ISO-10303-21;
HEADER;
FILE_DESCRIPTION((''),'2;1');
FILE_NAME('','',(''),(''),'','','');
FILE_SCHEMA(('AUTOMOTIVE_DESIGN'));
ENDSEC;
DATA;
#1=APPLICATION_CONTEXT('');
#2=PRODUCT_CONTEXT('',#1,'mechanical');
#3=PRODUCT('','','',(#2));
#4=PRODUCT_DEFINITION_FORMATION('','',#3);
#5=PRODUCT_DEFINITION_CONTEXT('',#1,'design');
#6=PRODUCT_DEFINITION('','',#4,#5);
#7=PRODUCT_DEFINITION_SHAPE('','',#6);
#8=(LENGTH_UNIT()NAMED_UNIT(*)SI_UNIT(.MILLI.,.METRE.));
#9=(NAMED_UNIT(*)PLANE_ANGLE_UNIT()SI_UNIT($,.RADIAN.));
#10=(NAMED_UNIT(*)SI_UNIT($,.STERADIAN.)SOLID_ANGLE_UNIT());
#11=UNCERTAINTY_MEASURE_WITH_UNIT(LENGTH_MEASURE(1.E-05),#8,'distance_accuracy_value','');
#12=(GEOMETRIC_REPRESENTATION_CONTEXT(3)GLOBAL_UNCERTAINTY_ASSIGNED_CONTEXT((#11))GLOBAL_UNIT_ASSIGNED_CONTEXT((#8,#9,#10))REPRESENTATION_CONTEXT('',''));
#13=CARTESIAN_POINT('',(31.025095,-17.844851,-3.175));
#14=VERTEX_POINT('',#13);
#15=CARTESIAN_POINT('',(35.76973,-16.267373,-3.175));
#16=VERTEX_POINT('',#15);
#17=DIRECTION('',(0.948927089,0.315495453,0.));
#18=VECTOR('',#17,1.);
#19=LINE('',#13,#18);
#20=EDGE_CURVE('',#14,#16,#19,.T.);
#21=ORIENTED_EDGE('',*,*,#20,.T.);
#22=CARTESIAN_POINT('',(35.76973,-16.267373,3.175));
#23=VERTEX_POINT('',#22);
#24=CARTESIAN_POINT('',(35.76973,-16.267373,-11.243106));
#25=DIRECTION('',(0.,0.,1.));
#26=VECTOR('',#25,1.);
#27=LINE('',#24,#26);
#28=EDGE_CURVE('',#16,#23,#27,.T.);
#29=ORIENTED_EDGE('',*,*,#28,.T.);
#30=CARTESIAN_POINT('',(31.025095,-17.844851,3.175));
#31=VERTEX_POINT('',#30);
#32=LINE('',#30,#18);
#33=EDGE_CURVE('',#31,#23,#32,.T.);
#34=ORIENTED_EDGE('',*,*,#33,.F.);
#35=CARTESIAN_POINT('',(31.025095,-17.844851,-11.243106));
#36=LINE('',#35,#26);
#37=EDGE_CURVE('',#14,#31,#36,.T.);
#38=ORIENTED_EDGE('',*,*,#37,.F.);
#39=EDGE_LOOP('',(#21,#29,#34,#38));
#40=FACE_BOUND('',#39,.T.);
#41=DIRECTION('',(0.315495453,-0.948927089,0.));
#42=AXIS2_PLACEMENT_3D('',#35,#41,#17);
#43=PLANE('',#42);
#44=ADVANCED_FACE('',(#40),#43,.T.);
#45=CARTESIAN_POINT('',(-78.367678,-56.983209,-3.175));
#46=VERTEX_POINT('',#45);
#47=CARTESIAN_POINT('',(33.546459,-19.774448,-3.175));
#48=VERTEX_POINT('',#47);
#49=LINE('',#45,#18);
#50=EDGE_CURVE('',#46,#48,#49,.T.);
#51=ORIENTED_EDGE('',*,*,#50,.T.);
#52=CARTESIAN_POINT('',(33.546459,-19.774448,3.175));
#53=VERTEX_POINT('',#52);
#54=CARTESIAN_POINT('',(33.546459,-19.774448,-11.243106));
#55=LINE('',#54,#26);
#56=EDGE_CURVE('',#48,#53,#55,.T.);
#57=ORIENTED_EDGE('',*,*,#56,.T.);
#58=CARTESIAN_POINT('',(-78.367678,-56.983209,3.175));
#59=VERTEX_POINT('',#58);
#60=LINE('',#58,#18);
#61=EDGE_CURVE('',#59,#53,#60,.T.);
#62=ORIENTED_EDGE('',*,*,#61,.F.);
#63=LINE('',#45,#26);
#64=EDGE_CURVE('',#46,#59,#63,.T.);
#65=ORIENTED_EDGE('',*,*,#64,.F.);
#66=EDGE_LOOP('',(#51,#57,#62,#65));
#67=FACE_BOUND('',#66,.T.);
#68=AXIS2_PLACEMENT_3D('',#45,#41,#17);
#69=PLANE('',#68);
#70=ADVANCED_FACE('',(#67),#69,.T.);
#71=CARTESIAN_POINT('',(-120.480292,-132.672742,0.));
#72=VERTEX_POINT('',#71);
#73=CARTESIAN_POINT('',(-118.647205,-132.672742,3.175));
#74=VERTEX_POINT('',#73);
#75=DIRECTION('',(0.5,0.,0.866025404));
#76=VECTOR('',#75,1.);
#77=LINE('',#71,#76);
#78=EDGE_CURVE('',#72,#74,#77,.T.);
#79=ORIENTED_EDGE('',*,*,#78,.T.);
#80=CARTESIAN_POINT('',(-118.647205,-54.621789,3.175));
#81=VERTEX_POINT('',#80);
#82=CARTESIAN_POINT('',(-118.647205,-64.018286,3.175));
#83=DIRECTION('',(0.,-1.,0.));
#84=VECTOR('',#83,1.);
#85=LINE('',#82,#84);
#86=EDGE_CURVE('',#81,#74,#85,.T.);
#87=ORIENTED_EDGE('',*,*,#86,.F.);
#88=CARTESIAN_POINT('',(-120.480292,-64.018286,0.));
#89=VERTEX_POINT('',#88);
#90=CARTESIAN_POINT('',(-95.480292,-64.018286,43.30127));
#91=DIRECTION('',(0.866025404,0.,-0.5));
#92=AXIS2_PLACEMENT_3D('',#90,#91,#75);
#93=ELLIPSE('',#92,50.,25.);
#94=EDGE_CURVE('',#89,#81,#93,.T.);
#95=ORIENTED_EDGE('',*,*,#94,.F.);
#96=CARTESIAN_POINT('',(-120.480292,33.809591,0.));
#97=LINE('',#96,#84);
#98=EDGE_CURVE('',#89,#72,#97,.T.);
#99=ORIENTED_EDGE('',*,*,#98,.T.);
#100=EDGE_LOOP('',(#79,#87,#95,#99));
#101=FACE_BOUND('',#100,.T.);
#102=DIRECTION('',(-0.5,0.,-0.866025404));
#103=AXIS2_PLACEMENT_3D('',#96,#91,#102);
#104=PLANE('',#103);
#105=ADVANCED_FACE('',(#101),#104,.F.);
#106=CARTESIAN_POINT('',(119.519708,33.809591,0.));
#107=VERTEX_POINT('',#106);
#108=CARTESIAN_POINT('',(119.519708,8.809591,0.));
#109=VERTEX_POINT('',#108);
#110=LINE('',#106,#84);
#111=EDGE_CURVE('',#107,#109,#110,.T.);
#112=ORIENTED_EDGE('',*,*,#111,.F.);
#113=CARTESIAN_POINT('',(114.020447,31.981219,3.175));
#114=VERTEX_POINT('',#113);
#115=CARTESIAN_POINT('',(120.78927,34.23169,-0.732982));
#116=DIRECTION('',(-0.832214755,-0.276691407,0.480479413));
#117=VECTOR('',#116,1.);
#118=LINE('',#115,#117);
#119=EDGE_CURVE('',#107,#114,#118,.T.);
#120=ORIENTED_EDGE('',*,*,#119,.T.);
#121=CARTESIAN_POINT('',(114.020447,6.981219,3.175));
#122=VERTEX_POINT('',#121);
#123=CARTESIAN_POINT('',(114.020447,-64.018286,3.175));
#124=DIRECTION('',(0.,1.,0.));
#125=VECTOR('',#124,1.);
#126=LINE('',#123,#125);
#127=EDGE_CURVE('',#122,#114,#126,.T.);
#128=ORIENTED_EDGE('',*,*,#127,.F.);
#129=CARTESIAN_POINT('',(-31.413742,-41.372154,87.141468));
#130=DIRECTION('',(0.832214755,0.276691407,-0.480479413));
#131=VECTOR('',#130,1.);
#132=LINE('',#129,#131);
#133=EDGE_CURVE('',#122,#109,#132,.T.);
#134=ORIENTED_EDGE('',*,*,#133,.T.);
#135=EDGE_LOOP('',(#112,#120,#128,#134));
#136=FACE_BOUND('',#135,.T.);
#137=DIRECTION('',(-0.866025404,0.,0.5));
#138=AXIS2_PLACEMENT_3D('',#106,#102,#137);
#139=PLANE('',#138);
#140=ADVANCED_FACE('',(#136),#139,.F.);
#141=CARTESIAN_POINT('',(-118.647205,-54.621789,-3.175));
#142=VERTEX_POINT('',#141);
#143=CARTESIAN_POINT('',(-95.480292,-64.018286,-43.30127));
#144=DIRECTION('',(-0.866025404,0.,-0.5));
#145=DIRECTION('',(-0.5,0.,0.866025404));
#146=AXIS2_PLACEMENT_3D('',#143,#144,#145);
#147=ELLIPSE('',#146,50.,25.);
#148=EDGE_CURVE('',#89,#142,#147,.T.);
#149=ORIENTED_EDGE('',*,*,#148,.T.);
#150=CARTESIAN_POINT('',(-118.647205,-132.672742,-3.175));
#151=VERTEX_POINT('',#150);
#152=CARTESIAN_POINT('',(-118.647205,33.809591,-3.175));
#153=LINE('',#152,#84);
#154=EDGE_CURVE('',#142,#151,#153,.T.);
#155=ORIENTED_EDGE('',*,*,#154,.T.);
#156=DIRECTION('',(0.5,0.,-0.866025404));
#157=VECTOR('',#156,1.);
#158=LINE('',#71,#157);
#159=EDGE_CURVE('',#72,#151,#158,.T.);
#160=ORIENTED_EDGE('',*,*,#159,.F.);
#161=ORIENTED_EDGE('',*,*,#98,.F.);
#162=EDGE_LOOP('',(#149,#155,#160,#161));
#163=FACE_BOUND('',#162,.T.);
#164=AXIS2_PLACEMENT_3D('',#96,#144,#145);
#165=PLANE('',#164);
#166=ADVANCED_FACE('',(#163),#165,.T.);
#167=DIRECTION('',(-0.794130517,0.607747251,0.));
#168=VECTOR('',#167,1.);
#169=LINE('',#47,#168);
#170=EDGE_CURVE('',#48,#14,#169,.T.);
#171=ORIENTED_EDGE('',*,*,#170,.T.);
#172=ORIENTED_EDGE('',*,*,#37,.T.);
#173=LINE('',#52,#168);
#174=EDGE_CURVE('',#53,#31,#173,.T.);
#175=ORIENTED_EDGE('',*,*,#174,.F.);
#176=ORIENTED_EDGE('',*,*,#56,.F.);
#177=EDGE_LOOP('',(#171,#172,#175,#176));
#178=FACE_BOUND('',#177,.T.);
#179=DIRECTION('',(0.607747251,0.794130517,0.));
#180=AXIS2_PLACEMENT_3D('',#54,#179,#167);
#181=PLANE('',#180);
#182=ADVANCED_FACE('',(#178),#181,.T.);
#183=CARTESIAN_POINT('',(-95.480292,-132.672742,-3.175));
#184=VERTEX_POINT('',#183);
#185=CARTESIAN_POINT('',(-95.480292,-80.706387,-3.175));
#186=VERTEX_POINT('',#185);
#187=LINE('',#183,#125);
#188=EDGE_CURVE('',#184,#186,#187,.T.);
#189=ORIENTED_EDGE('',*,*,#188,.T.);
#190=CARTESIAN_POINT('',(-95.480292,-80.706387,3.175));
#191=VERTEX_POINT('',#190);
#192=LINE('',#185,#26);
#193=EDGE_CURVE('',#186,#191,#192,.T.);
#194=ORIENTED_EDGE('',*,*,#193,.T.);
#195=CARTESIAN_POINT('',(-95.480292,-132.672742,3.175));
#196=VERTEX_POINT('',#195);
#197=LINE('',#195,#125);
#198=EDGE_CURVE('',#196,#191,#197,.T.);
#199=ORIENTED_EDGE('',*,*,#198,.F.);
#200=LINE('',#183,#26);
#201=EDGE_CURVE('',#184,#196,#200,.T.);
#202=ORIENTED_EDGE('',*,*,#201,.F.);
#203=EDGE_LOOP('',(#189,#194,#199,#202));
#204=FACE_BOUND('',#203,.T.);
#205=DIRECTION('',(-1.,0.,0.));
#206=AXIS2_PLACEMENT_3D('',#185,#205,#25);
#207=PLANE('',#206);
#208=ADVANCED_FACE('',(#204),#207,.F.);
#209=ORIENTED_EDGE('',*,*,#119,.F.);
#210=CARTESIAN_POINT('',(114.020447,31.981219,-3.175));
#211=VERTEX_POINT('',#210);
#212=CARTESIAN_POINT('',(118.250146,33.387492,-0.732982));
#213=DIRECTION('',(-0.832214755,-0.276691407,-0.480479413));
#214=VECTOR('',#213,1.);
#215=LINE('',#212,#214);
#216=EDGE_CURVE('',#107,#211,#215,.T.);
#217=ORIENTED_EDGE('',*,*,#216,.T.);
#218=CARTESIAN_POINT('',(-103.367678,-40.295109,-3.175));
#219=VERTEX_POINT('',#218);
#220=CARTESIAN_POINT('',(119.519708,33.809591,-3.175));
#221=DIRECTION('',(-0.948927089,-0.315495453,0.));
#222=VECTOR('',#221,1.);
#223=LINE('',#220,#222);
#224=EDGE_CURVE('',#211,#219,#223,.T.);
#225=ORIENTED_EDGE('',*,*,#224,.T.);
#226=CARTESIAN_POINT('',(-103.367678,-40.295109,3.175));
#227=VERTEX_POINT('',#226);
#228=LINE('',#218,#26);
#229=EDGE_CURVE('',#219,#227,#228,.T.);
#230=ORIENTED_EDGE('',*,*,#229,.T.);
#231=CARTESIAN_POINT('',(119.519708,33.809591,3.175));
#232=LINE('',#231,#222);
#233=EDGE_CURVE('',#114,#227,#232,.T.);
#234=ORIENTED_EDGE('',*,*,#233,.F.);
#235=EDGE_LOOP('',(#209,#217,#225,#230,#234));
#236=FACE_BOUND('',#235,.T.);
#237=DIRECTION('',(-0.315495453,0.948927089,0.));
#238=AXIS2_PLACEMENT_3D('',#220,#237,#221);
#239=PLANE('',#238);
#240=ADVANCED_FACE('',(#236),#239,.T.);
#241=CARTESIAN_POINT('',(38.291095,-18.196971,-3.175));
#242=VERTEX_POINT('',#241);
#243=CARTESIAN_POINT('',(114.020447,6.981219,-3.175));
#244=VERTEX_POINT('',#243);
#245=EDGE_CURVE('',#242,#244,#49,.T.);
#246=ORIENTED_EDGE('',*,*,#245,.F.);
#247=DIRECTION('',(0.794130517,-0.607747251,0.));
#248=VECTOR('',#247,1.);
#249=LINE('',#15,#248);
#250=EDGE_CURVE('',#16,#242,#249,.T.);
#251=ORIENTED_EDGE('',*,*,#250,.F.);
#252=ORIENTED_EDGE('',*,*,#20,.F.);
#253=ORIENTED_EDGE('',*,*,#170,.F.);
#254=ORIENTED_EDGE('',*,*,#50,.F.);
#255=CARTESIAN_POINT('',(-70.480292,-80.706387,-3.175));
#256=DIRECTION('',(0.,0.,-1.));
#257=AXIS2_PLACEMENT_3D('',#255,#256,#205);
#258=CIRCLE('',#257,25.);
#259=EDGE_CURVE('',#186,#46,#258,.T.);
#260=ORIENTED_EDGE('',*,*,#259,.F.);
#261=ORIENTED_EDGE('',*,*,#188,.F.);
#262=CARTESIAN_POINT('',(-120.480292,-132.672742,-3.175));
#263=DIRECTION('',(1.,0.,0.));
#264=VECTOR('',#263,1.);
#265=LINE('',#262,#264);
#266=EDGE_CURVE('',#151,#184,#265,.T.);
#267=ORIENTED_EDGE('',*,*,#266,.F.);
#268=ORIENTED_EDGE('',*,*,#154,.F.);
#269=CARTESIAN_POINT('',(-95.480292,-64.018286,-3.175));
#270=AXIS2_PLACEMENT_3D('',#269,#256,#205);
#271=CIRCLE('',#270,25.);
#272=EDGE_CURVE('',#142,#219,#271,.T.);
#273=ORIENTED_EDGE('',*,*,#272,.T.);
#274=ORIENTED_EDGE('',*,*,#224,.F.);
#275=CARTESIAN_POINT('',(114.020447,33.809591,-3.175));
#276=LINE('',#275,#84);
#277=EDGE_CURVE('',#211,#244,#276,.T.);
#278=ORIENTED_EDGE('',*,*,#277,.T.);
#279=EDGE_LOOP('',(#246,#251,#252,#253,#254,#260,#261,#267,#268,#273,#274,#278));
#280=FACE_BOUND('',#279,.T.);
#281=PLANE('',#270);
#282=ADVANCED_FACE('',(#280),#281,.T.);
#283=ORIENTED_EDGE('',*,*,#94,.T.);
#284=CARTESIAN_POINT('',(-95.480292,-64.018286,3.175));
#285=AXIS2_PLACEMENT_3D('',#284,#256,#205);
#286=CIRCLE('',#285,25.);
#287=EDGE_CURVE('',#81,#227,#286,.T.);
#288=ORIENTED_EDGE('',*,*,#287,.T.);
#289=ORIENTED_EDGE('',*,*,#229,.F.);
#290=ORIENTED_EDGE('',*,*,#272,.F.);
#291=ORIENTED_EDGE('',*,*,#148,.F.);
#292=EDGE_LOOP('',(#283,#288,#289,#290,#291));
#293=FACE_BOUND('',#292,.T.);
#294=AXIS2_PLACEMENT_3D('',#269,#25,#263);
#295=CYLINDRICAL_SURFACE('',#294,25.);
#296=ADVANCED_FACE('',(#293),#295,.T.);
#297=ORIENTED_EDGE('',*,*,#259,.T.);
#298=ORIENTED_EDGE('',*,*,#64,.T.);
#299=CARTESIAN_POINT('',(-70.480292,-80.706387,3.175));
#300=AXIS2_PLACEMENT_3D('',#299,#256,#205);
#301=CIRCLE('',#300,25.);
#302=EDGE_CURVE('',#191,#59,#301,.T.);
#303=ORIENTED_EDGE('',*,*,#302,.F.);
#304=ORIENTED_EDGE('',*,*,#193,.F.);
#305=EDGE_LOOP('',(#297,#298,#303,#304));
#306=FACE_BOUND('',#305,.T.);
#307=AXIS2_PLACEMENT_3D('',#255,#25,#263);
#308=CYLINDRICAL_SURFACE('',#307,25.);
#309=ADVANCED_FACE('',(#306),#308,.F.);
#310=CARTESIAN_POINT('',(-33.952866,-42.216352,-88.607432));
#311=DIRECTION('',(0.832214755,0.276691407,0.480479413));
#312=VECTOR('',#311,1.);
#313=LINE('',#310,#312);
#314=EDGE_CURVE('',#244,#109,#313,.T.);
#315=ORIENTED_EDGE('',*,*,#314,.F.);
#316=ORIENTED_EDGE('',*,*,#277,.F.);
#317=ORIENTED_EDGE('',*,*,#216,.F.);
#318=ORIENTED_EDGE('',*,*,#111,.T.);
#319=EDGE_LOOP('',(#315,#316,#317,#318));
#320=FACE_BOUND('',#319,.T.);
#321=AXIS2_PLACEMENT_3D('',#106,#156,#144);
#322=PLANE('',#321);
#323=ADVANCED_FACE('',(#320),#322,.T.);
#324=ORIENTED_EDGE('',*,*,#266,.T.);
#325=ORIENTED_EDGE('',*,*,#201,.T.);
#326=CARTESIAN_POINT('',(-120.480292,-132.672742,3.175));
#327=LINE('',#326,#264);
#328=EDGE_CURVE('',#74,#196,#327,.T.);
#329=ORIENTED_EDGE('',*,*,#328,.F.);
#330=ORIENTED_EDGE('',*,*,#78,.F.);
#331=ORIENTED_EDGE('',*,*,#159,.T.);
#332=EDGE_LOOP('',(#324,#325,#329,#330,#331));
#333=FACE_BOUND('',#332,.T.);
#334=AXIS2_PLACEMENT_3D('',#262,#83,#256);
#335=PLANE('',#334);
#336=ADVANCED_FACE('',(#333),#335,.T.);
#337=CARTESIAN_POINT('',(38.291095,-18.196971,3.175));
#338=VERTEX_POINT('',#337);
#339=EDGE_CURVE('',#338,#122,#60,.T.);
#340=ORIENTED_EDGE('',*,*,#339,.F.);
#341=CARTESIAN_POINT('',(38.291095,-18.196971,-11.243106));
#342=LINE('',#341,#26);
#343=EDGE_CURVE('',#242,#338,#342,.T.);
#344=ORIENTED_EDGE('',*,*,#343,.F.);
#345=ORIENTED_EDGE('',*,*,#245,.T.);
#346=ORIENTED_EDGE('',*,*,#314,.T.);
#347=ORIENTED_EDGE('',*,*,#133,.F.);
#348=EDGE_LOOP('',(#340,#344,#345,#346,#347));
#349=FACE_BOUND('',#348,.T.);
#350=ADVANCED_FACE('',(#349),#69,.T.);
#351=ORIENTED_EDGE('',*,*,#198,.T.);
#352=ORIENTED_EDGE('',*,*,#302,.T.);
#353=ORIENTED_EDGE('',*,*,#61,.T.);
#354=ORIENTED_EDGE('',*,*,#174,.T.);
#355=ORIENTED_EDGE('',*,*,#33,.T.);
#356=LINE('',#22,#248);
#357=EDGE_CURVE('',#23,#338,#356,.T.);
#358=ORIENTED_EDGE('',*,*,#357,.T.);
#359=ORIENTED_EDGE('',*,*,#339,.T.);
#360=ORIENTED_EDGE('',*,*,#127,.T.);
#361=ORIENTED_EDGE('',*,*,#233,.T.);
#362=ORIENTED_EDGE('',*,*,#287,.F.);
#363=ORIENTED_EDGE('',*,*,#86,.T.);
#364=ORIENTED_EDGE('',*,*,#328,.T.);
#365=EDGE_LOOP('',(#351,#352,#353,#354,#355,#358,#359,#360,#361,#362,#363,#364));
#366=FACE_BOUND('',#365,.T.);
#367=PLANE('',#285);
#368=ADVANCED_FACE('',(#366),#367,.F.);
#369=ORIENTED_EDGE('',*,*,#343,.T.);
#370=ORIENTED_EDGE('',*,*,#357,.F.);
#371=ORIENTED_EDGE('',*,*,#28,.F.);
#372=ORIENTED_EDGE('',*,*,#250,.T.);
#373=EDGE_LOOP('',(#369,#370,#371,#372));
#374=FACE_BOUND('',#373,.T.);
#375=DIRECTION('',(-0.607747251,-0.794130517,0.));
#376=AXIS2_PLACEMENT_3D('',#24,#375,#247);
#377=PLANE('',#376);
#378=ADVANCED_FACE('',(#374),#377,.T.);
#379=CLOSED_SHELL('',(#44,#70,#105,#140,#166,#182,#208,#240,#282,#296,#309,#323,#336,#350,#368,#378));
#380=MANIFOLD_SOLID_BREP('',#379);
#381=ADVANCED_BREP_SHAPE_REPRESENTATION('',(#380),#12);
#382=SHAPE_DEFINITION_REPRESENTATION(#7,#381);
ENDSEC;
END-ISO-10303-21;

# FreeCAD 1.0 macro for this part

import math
import FreeCAD as App
import Part
import Sketcher
Q = App.Units.Quantity


def add_polygon(sketch, points):
    """Adds a closed chain of lines whose ends are joined by coincident constraints."""
    first, n = sketch.GeometryCount, len(points)
    for a, b in zip(points, points[1:] + points[:1]):
        sketch.addGeometry(Part.LineSegment(App.Vector(*a, 0), App.Vector(*b, 0)), False)
    for i in range(n):
        sketch.addConstraint(Sketcher.Constraint("Coincident", first + i, 2, first + (i + 1) % n, 1))

doc = App.newDocument("Part")
params = doc.addObject("Spreadsheet::Sheet", "Params")
for row, (alias, value) in enumerate([
    ("sketch1_radius", "25 mm"),
    ("pad1_length", "3.175 mm"),
    ("pad1_length2", "3.175 mm"),
    ("sketch3_length", "6.35 mm"),
    ("sketch4_length", "5 mm"),
    ("pocket3_length", "6.35 mm"),
], start=1):
    params.set(f"A{row}", alias)
    params.set(f"B{row}", "=" + value)
    params.setAlias(f"B{row}", alias)

body = doc.addObject("PartDesign::Body", "Body")

sketch1 = body.newObject("Sketcher::SketchObject", "Sketch")
sketch1.AttachmentSupport = (doc.getObject("XY_Plane"), [""])
sketch1.MapMode = "FlatFace"
sketch1.addGeometry([
    Part.LineSegment(App.Vector(-95, -133, 0), App.Vector(-95, -81, 0)),
    Part.ArcOfCircle(Part.Circle(App.Vector(-70, -81, 0), App.Vector(0, 0, 1), 25), math.radians(108), math.radians(180)),
    Part.LineSegment(App.Vector(-78, -57, 0), App.Vector(120, 9, 0)),
    Part.LineSegment(App.Vector(120, 9, 0), App.Vector(120, 34, 0)),
    Part.LineSegment(App.Vector(120, 34, 0), App.Vector(-103, -40, 0)),
    Part.ArcOfCircle(Part.Circle(App.Vector(-95, -64, 0), App.Vector(0, 0, 1), 25), math.radians(108), math.radians(180)),
    Part.LineSegment(App.Vector(-120, -64, 0), App.Vector(-120, -133, 0)),
    Part.LineSegment(App.Vector(-120, -133, 0), App.Vector(-95, -133, 0)),
], False)
sketch1.addConstraint([
    Sketcher.Constraint("Tangent", 0, 2, 1, 2),
    Sketcher.Constraint("Tangent", 1, 1, 2, 1),
    Sketcher.Constraint("Coincident", 2, 2, 3, 1),
    Sketcher.Constraint("Coincident", 3, 2, 4, 1),
    Sketcher.Constraint("Tangent", 4, 2, 5, 1),
    Sketcher.Constraint("Tangent", 5, 2, 6, 1),
    Sketcher.Constraint("Coincident", 6, 2, 7, 1),
    Sketcher.Constraint("Coincident", 7, 2, 0, 1),
    Sketcher.Constraint("Vertical", 0),
    Sketcher.Constraint("Vertical", 3),
    Sketcher.Constraint("Vertical", 6),
    Sketcher.Constraint("Horizontal", 7),
    Sketcher.Constraint("Equal", 1, 5),
    Sketcher.Constraint("Parallel", 2, 4),
    Sketcher.Constraint("Vertical", 5, 3, 0, 2),
    Sketcher.Constraint("Equal", 7, 3),
    Sketcher.Constraint("Radius", 1, Q("25 mm")),
    Sketcher.Constraint("DistanceX", 1, 3, 2, 2, Q("190 mm")),
    Sketcher.Constraint("DistanceY", 1, 3, 5, 3, Q("16.688101 mm")),
    Sketcher.Constraint("DistanceY", 0, 1, 0, 2, Q("51.966356 mm")),
    Sketcher.Constraint("DistanceX", 1, 3, -1, 1, Q("70.480292 mm")),
    Sketcher.Constraint("DistanceY", 1, 1, -1, 1, Q("56.983209 mm")),
])
sketch1.setExpression("Constraints[16]", "Params.sketch1_radius")
pad1 = body.newObject("PartDesign::Pad", "Pad")
pad1.Profile = sketch1
pad1.Type = "TwoLengths"
pad1.setExpression("Length", "Params.pad1_length")
pad1.setExpression("Length2", "Params.pad1_length2")

sketch2 = body.newObject("Sketcher::SketchObject", "Sketch001")
sketch2.AttachmentSupport = (doc.getObject("XZ_Plane"), [""])
sketch2.MapMode = "FlatFace"
sketch2.AttachmentOffset = App.Placement(App.Vector(0, 0, 132.672742), App.Rotation())
add_polygon(sketch2, [(-120.5, 3.2), (-120.5, 0), (-118.6, 3.2)])
sketch2.addConstraint([
    Sketcher.Constraint("Vertical", 0),
    Sketcher.Constraint("Horizontal", 2),
    Sketcher.Constraint("PointOnObject", 0, 2, -1),
    Sketcher.Constraint("Angle", 1, Q("60 deg")),
    Sketcher.Constraint("DistanceY", 0, 2, 0, 1, Q("3.175 mm")),
    Sketcher.Constraint("DistanceX", 0, 2, -1, 1, Q("120.480292 mm")),
])
pocket1 = body.newObject("PartDesign::Pocket", "Pocket")
pocket1.Profile = sketch2
pocket1.Type = "ThroughAll"
doc.recompute()

mirrored = body.newObject("PartDesign::Mirrored", "Mirrored")
mirrored.Originals = [pocket1]
mirrored.MirrorPlane = (doc.getObject("XY_Plane"), [""])
body.Tip = mirrored

sketch3 = body.newObject("Sketcher::SketchObject", "Sketch002")
sketch3.AttachmentSupport = (doc.getObject("XZ_Plane"), [""])
sketch3.MapMode = "FlatFace"
sketch3.AttachmentOffset = App.Placement(App.Vector(0, 0, 132.672742), App.Rotation())
add_polygon(sketch3, [(119.5, 3.2), (114, 3.2), (119.5, 0)])
sketch3.addConstraint([
    Sketcher.Constraint("Horizontal", 0),
    Sketcher.Constraint("Vertical", 2),
    Sketcher.Constraint("PointOnObject", 1, 2, -1),
    Sketcher.Constraint("Angle", 1, Q("-30 deg")),
    Sketcher.Constraint("Distance", 1, Q("6.35 mm")),
    Sketcher.Constraint("DistanceX", -1, 1, 1, 2, Q("119.519708 mm")),
])
sketch3.setExpression("Constraints[7]", "Params.sketch3_length")
pocket2 = body.newObject("PartDesign::Pocket", "Pocket001")
pocket2.Profile = sketch3
pocket2.Type = "ThroughAll"
doc.recompute()

mirrored2 = body.newObject("PartDesign::Mirrored", "Mirrored001")
mirrored2.Originals = [pocket2]
mirrored2.MirrorPlane = (doc.getObject("XY_Plane"), [""])
body.Tip = mirrored2

sketch4 = body.newObject("Sketcher::SketchObject", "Sketch003")
sketch4.AttachmentSupport = (doc.getObject("XY_Plane"), [""])
sketch4.MapMode = "FlatFace"
sketch4.AttachmentOffset = App.Placement(App.Vector(0, 0, 3.175), App.Rotation())
add_polygon(sketch4, [(33.5, -19.8), (38.3, -18.2), (35.8, -16.3), (31, -17.8)])
sketch4.addConstraint([
    Sketcher.Constraint("Parallel", 0, 2),
    Sketcher.Constraint("Parallel", 1, 3),
    Sketcher.Constraint("Distance", 0, Q("5 mm")),
    Sketcher.Constraint("Distance", 1, Q("3.175 mm")),
    Sketcher.Constraint("DistanceX", 2, 2, 0, 2, Q("7.266 mm")),
    Sketcher.Constraint("DistanceY", 0, 2, -1, 1, Q("18.196971 mm")),
    Sketcher.Constraint("DistanceX", -1, 1, 1, 2, Q("35.76973 mm")),
    Sketcher.Constraint("DistanceY", 2, 2, -1, 1, Q("17.844851 mm")),
])
sketch4.setExpression("Constraints[6]", "Params.sketch4_length")
pocket3 = body.newObject("PartDesign::Pocket", "Pocket002")
pocket3.Profile = sketch4
pocket3.setExpression("Length", "Params.pocket3_length")

doc.recompute()
